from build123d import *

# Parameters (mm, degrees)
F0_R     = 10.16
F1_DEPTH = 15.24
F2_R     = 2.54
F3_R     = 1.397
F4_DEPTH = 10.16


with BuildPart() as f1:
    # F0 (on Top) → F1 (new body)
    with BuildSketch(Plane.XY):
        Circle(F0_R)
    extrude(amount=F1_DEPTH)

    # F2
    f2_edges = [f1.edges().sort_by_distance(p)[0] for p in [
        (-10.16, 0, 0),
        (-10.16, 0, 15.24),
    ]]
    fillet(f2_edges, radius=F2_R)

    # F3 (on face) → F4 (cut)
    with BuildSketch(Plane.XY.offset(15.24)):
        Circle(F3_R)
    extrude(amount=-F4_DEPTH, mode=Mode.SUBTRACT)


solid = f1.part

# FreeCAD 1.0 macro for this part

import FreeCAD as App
import Part
import Sketcher
Q = App.Units.Quantity


def edges_at(feature, points):
    """Names of the edges that pass closest to the given points."""
    edges = feature.Shape.Edges
    near = lambda p: min(range(len(edges)), key=lambda i: edges[i].distToShape(Part.Vertex(*p))[0])
    return sorted({f"Edge{near(p) + 1}" for p in points})

doc = App.newDocument("Part")
body = doc.addObject("PartDesign::Body", "Body")

# Sketch on XY plane
sketch1 = body.newObject("Sketcher::SketchObject", "Sketch")
sketch1.AttachmentSupport = (doc.getObject("XY_Plane"), [""])
sketch1.MapMode = "FlatFace"
sketch1.addGeometry(Part.Circle(App.Vector(0, 0, 0), App.Vector(0, 0, 1), 10.16), False)
sketch1.addConstraint([
    Sketcher.Constraint("Coincident", 0, 3, -1, 1),
    Sketcher.Constraint("Diameter", 0, Q("0.8 in")),
])
pad1 = body.newObject("PartDesign::Pad", "Pad")
pad1.Profile = sketch1
pad1.Length = Q("0.6 in")
doc.recompute()

fillet = body.newObject("PartDesign::Fillet", "Fillet")
fillet.Base = (pad1, edges_at(pad1, [(-10.16, 0, 0), (-10.16, 0, 15.24)]))
fillet.Radius = Q("0.1 in")

# Sketch on XY plane
sketch2 = body.newObject("Sketcher::SketchObject", "Sketch001")
sketch2.AttachmentSupport = (doc.getObject("XY_Plane"), [""])
sketch2.MapMode = "FlatFace"
sketch2.AttachmentOffset = App.Placement(App.Vector(0, 0, 0.6 * 25.4), App.Rotation())
sketch2.addGeometry(Part.Circle(App.Vector(0, 0, 0), App.Vector(0, 0, 1), 1.397), False)
sketch2.addConstraint([
    Sketcher.Constraint("Coincident", 0, 3, -1, 1),
    Sketcher.Constraint("Diameter", 0, Q("0.11 in")),
])
pocket1 = body.newObject("PartDesign::Pocket", "Pocket")
pocket1.Profile = sketch2
pocket1.Length = Q("0.4 in")

doc.recompute()
